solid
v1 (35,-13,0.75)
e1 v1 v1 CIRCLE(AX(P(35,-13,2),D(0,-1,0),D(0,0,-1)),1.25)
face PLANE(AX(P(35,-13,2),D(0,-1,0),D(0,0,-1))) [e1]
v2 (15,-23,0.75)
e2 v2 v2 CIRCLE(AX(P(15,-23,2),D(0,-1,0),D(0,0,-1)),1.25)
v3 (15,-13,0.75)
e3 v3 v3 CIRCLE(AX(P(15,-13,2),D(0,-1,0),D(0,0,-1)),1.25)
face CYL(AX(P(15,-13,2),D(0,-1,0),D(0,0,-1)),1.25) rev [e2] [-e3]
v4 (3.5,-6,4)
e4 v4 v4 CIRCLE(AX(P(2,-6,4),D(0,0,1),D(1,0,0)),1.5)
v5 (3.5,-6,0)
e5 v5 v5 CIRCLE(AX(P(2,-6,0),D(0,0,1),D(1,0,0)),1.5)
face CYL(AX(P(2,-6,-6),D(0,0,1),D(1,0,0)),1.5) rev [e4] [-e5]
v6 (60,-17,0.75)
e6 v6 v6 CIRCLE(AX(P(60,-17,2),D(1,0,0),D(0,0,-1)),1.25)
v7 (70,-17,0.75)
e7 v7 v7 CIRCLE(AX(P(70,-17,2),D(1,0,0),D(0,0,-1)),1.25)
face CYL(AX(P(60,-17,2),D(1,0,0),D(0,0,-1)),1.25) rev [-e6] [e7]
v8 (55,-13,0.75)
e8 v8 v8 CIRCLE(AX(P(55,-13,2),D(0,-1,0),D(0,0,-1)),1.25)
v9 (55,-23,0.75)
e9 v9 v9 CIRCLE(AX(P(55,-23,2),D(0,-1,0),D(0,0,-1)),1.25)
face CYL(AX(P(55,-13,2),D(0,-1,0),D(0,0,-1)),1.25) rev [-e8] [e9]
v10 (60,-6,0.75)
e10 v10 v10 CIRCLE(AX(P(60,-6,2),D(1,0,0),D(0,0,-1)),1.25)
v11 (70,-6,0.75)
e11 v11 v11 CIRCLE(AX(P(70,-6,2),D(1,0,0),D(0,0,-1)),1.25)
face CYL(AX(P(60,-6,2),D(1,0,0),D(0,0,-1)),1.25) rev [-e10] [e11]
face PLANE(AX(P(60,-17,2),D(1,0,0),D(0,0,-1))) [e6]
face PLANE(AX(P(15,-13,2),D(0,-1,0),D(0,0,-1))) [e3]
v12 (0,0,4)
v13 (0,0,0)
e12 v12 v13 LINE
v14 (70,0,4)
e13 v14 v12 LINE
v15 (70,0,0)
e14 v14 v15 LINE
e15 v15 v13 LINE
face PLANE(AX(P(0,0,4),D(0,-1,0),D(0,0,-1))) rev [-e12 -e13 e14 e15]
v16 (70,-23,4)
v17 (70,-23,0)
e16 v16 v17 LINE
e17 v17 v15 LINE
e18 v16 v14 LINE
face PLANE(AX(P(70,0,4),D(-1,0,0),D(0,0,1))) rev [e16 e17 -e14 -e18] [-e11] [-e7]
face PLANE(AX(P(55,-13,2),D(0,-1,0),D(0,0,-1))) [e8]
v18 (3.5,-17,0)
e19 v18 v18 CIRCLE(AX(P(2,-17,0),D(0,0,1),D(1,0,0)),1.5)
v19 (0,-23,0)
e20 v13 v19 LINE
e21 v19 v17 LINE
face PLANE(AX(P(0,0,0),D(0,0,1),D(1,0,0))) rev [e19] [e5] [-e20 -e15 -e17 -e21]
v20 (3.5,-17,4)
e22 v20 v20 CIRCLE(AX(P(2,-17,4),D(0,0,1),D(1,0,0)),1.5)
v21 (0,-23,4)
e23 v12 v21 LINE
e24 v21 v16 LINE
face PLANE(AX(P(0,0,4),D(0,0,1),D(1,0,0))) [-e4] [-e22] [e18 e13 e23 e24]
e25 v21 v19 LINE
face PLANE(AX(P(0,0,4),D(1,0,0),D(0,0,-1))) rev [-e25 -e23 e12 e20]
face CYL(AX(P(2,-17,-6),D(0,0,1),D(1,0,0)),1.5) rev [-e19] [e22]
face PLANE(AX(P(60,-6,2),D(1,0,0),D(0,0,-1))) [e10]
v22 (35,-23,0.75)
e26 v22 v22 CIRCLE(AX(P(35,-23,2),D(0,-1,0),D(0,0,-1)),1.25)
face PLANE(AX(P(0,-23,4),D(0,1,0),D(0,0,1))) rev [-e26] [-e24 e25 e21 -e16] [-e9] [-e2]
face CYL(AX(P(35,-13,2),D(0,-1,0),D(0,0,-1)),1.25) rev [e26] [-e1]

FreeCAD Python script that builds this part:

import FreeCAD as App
import Part
import Sketcher
from FreeCAD import Vector
Q = App.Units.Quantity


def add_polygon(sketch, points):
    """Adds a closed chain of lines whose ends are joined by coincident constraints."""
    first, n = sketch.GeometryCount, len(points)
    for a, b in zip(points, points[1:] + points[:1]):
        sketch.addGeometry(Part.LineSegment(App.Vector(*a, 0), App.Vector(*b, 0)), False)
    for i in range(n):
        sketch.addConstraint(Sketcher.Constraint("Coincident", first + i, 2, first + (i + 1) % n, 1))

doc = App.newDocument("Part")
params = doc.addObject("Spreadsheet::Sheet", "Params")
for row, (alias, value) in enumerate([
    ("sketch1_width", "70 mm"),
    ("sketch1_height", "23 mm"),
    ("pad1_length", "4 mm"),
    ("sketch2_diameter", "2.5 mm"),
    ("pocket1_length", "10 mm"),
    ("sketch3_diameter", "2.5 mm"),
    ("pocket2_length", "10 mm"),
    ("sketch4_diameter", "3 mm"),
    ("pocket3_length", "10 mm"),
], start=1):
    params.set(f"A{row}", alias)
    params.set(f"B{row}", "=" + value)
    params.setAlias(f"B{row}", alias)

body = doc.addObject("PartDesign::Body", "Body")

sketch1 = body.newObject("Sketcher::SketchObject", "Sketch")
sketch1.AttachmentSupport = (doc.getObject("XY_Plane"), [""])
sketch1.MapMode = "FlatFace"
add_polygon(sketch1, [(0, 0), (0, -23), (70, -23), (70, 0)])
sketch1.addConstraint(Sketcher.Constraint("Vertical", 0))
sketch1.addConstraint(Sketcher.Constraint("Horizontal", 1))
sketch1.addConstraint(Sketcher.Constraint("Vertical", 2))
sketch1.addConstraint(Sketcher.Constraint("Horizontal", 3))
sketch1.addConstraint(Sketcher.Constraint("Coincident", 3, 2, -1, 1))
sketch1.addConstraint(Sketcher.Constraint("DistanceX", 1, 1, 1, 2, Q("70 mm")))
sketch1.addConstraint(Sketcher.Constraint("DistanceY", 0, 2, 0, 1, Q("23 mm")))
sketch1.setExpression("Constraints[9]", "Params.sketch1_width")
sketch1.setExpression("Constraints[10]", "Params.sketch1_height")
pad1 = body.newObject("PartDesign::Pad", "Pad")
pad1.Profile = sketch1
pad1.setExpression("Length", "Params.pad1_length")

sketch2 = body.newObject("Sketcher::SketchObject", "Sketch001")
sketch2.AttachmentSupport = (doc.getObject("YZ_Plane"), [""])
sketch2.MapMode = "FlatFace"
sketch2.AttachmentOffset = App.Placement(Vector(0, 0, 70), App.Rotation())
sketch2.addGeometry(Part.Circle(Vector(-6, 2, 0), Vector(0, 0, 1), 1.25), False)
sketch2.addGeometry(Part.Circle(Vector(-17, 2, 0), Vector(0, 0, 1), 1.25), False)
sketch2.addConstraint(Sketcher.Constraint("Equal", 0, 1))
sketch2.addConstraint(Sketcher.Constraint("Horizontal", 0, 3, 1, 3))
sketch2.addConstraint(Sketcher.Constraint("Diameter", 0, Q("2.5 mm")))
sketch2.addConstraint(Sketcher.Constraint("DistanceX", 0, 3, -1, 1, Q("6 mm")))
sketch2.addConstraint(Sketcher.Constraint("DistanceY", -1, 1, 0, 3, Q("2 mm")))
sketch2.addConstraint(Sketcher.Constraint("DistanceX", 1, 3, -1, 1, Q("17 mm")))
sketch2.setExpression("Constraints[2]", "Params.sketch2_diameter")
pocket1 = body.newObject("PartDesign::Pocket", "Pocket")
pocket1.Profile = sketch2
pocket1.setExpression("Length", "Params.pocket1_length")

sketch3 = body.newObject("Sketcher::SketchObject", "Sketch002")
sketch3.AttachmentSupport = (doc.getObject("XZ_Plane"), [""])
sketch3.MapMode = "FlatFace"
sketch3.AttachmentOffset = App.Placement(Vector(0, 0, 23), App.Rotation())
sketch3.addGeometry(Part.Circle(Vector(15, 2, 0), Vector(0, 0, 1), 1.25), False)
sketch3.addGeometry(Part.Circle(Vector(35, 2, 0), Vector(0, 0, 1), 1.25), False)
sketch3.addGeometry(Part.Circle(Vector(55, 2, 0), Vector(0, 0, 1), 1.25), False)
sketch3.addConstraint(Sketcher.Constraint("Equal", 0, 1))
sketch3.addConstraint(Sketcher.Constraint("Equal", 1, 2))
sketch3.addConstraint(Sketcher.Constraint("Horizontal", 0, 3, 1, 3))
sketch3.addConstraint(Sketcher.Constraint("Horizontal", 1, 3, 2, 3))
sketch3.addConstraint(Sketcher.Constraint("Diameter", 0, Q("2.5 mm")))
sketch3.addConstraint(Sketcher.Constraint("DistanceX", -1, 1, 0, 3, Q("15 mm")))
sketch3.addConstraint(Sketcher.Constraint("DistanceY", -1, 1, 0, 3, Q("2 mm")))
sketch3.addConstraint(Sketcher.Constraint("DistanceX", -1, 1, 1, 3, Q("35 mm")))
sketch3.addConstraint(Sketcher.Constraint("DistanceX", -1, 1, 2, 3, Q("55 mm")))
sketch3.setExpression("Constraints[4]", "Params.sketch3_diameter")
pocket2 = body.newObject("PartDesign::Pocket", "Pocket001")
pocket2.Profile = sketch3
pocket2.setExpression("Length", "Params.pocket2_length")

sketch4 = body.newObject("Sketcher::SketchObject", "Sketch003")
sketch4.AttachmentSupport = (doc.getObject("XY_Plane"), [""])
sketch4.MapMode = "FlatFace"
sketch4.AttachmentOffset = App.Placement(Vector(0, 0, 4), App.Rotation())
sketch4.addGeometry(Part.Circle(Vector(2, -6, 0), Vector(0, 0, 1), 1.5), False)
sketch4.addGeometry(Part.Circle(Vector(2, -17, 0), Vector(0, 0, 1), 1.5), False)
sketch4.addConstraint(Sketcher.Constraint("Equal", 0, 1))
sketch4.addConstraint(Sketcher.Constraint("Vertical", 0, 3, 1, 3))
sketch4.addConstraint(Sketcher.Constraint("Diameter", 0, Q("3 mm")))
sketch4.addConstraint(Sketcher.Constraint("DistanceX", -1, 1, 0, 3, Q("2 mm")))
sketch4.addConstraint(Sketcher.Constraint("DistanceY", 0, 3, -1, 1, Q("6 mm")))
sketch4.addConstraint(Sketcher.Constraint("DistanceY", 1, 3, -1, 1, Q("17 mm")))
sketch4.setExpression("Constraints[2]", "Params.sketch4_diameter")
pocket3 = body.newObject("PartDesign::Pocket", "Pocket002")
pocket3.Profile = sketch4
pocket3.setExpression("Length", "Params.pocket3_length")

doc.recompute()
